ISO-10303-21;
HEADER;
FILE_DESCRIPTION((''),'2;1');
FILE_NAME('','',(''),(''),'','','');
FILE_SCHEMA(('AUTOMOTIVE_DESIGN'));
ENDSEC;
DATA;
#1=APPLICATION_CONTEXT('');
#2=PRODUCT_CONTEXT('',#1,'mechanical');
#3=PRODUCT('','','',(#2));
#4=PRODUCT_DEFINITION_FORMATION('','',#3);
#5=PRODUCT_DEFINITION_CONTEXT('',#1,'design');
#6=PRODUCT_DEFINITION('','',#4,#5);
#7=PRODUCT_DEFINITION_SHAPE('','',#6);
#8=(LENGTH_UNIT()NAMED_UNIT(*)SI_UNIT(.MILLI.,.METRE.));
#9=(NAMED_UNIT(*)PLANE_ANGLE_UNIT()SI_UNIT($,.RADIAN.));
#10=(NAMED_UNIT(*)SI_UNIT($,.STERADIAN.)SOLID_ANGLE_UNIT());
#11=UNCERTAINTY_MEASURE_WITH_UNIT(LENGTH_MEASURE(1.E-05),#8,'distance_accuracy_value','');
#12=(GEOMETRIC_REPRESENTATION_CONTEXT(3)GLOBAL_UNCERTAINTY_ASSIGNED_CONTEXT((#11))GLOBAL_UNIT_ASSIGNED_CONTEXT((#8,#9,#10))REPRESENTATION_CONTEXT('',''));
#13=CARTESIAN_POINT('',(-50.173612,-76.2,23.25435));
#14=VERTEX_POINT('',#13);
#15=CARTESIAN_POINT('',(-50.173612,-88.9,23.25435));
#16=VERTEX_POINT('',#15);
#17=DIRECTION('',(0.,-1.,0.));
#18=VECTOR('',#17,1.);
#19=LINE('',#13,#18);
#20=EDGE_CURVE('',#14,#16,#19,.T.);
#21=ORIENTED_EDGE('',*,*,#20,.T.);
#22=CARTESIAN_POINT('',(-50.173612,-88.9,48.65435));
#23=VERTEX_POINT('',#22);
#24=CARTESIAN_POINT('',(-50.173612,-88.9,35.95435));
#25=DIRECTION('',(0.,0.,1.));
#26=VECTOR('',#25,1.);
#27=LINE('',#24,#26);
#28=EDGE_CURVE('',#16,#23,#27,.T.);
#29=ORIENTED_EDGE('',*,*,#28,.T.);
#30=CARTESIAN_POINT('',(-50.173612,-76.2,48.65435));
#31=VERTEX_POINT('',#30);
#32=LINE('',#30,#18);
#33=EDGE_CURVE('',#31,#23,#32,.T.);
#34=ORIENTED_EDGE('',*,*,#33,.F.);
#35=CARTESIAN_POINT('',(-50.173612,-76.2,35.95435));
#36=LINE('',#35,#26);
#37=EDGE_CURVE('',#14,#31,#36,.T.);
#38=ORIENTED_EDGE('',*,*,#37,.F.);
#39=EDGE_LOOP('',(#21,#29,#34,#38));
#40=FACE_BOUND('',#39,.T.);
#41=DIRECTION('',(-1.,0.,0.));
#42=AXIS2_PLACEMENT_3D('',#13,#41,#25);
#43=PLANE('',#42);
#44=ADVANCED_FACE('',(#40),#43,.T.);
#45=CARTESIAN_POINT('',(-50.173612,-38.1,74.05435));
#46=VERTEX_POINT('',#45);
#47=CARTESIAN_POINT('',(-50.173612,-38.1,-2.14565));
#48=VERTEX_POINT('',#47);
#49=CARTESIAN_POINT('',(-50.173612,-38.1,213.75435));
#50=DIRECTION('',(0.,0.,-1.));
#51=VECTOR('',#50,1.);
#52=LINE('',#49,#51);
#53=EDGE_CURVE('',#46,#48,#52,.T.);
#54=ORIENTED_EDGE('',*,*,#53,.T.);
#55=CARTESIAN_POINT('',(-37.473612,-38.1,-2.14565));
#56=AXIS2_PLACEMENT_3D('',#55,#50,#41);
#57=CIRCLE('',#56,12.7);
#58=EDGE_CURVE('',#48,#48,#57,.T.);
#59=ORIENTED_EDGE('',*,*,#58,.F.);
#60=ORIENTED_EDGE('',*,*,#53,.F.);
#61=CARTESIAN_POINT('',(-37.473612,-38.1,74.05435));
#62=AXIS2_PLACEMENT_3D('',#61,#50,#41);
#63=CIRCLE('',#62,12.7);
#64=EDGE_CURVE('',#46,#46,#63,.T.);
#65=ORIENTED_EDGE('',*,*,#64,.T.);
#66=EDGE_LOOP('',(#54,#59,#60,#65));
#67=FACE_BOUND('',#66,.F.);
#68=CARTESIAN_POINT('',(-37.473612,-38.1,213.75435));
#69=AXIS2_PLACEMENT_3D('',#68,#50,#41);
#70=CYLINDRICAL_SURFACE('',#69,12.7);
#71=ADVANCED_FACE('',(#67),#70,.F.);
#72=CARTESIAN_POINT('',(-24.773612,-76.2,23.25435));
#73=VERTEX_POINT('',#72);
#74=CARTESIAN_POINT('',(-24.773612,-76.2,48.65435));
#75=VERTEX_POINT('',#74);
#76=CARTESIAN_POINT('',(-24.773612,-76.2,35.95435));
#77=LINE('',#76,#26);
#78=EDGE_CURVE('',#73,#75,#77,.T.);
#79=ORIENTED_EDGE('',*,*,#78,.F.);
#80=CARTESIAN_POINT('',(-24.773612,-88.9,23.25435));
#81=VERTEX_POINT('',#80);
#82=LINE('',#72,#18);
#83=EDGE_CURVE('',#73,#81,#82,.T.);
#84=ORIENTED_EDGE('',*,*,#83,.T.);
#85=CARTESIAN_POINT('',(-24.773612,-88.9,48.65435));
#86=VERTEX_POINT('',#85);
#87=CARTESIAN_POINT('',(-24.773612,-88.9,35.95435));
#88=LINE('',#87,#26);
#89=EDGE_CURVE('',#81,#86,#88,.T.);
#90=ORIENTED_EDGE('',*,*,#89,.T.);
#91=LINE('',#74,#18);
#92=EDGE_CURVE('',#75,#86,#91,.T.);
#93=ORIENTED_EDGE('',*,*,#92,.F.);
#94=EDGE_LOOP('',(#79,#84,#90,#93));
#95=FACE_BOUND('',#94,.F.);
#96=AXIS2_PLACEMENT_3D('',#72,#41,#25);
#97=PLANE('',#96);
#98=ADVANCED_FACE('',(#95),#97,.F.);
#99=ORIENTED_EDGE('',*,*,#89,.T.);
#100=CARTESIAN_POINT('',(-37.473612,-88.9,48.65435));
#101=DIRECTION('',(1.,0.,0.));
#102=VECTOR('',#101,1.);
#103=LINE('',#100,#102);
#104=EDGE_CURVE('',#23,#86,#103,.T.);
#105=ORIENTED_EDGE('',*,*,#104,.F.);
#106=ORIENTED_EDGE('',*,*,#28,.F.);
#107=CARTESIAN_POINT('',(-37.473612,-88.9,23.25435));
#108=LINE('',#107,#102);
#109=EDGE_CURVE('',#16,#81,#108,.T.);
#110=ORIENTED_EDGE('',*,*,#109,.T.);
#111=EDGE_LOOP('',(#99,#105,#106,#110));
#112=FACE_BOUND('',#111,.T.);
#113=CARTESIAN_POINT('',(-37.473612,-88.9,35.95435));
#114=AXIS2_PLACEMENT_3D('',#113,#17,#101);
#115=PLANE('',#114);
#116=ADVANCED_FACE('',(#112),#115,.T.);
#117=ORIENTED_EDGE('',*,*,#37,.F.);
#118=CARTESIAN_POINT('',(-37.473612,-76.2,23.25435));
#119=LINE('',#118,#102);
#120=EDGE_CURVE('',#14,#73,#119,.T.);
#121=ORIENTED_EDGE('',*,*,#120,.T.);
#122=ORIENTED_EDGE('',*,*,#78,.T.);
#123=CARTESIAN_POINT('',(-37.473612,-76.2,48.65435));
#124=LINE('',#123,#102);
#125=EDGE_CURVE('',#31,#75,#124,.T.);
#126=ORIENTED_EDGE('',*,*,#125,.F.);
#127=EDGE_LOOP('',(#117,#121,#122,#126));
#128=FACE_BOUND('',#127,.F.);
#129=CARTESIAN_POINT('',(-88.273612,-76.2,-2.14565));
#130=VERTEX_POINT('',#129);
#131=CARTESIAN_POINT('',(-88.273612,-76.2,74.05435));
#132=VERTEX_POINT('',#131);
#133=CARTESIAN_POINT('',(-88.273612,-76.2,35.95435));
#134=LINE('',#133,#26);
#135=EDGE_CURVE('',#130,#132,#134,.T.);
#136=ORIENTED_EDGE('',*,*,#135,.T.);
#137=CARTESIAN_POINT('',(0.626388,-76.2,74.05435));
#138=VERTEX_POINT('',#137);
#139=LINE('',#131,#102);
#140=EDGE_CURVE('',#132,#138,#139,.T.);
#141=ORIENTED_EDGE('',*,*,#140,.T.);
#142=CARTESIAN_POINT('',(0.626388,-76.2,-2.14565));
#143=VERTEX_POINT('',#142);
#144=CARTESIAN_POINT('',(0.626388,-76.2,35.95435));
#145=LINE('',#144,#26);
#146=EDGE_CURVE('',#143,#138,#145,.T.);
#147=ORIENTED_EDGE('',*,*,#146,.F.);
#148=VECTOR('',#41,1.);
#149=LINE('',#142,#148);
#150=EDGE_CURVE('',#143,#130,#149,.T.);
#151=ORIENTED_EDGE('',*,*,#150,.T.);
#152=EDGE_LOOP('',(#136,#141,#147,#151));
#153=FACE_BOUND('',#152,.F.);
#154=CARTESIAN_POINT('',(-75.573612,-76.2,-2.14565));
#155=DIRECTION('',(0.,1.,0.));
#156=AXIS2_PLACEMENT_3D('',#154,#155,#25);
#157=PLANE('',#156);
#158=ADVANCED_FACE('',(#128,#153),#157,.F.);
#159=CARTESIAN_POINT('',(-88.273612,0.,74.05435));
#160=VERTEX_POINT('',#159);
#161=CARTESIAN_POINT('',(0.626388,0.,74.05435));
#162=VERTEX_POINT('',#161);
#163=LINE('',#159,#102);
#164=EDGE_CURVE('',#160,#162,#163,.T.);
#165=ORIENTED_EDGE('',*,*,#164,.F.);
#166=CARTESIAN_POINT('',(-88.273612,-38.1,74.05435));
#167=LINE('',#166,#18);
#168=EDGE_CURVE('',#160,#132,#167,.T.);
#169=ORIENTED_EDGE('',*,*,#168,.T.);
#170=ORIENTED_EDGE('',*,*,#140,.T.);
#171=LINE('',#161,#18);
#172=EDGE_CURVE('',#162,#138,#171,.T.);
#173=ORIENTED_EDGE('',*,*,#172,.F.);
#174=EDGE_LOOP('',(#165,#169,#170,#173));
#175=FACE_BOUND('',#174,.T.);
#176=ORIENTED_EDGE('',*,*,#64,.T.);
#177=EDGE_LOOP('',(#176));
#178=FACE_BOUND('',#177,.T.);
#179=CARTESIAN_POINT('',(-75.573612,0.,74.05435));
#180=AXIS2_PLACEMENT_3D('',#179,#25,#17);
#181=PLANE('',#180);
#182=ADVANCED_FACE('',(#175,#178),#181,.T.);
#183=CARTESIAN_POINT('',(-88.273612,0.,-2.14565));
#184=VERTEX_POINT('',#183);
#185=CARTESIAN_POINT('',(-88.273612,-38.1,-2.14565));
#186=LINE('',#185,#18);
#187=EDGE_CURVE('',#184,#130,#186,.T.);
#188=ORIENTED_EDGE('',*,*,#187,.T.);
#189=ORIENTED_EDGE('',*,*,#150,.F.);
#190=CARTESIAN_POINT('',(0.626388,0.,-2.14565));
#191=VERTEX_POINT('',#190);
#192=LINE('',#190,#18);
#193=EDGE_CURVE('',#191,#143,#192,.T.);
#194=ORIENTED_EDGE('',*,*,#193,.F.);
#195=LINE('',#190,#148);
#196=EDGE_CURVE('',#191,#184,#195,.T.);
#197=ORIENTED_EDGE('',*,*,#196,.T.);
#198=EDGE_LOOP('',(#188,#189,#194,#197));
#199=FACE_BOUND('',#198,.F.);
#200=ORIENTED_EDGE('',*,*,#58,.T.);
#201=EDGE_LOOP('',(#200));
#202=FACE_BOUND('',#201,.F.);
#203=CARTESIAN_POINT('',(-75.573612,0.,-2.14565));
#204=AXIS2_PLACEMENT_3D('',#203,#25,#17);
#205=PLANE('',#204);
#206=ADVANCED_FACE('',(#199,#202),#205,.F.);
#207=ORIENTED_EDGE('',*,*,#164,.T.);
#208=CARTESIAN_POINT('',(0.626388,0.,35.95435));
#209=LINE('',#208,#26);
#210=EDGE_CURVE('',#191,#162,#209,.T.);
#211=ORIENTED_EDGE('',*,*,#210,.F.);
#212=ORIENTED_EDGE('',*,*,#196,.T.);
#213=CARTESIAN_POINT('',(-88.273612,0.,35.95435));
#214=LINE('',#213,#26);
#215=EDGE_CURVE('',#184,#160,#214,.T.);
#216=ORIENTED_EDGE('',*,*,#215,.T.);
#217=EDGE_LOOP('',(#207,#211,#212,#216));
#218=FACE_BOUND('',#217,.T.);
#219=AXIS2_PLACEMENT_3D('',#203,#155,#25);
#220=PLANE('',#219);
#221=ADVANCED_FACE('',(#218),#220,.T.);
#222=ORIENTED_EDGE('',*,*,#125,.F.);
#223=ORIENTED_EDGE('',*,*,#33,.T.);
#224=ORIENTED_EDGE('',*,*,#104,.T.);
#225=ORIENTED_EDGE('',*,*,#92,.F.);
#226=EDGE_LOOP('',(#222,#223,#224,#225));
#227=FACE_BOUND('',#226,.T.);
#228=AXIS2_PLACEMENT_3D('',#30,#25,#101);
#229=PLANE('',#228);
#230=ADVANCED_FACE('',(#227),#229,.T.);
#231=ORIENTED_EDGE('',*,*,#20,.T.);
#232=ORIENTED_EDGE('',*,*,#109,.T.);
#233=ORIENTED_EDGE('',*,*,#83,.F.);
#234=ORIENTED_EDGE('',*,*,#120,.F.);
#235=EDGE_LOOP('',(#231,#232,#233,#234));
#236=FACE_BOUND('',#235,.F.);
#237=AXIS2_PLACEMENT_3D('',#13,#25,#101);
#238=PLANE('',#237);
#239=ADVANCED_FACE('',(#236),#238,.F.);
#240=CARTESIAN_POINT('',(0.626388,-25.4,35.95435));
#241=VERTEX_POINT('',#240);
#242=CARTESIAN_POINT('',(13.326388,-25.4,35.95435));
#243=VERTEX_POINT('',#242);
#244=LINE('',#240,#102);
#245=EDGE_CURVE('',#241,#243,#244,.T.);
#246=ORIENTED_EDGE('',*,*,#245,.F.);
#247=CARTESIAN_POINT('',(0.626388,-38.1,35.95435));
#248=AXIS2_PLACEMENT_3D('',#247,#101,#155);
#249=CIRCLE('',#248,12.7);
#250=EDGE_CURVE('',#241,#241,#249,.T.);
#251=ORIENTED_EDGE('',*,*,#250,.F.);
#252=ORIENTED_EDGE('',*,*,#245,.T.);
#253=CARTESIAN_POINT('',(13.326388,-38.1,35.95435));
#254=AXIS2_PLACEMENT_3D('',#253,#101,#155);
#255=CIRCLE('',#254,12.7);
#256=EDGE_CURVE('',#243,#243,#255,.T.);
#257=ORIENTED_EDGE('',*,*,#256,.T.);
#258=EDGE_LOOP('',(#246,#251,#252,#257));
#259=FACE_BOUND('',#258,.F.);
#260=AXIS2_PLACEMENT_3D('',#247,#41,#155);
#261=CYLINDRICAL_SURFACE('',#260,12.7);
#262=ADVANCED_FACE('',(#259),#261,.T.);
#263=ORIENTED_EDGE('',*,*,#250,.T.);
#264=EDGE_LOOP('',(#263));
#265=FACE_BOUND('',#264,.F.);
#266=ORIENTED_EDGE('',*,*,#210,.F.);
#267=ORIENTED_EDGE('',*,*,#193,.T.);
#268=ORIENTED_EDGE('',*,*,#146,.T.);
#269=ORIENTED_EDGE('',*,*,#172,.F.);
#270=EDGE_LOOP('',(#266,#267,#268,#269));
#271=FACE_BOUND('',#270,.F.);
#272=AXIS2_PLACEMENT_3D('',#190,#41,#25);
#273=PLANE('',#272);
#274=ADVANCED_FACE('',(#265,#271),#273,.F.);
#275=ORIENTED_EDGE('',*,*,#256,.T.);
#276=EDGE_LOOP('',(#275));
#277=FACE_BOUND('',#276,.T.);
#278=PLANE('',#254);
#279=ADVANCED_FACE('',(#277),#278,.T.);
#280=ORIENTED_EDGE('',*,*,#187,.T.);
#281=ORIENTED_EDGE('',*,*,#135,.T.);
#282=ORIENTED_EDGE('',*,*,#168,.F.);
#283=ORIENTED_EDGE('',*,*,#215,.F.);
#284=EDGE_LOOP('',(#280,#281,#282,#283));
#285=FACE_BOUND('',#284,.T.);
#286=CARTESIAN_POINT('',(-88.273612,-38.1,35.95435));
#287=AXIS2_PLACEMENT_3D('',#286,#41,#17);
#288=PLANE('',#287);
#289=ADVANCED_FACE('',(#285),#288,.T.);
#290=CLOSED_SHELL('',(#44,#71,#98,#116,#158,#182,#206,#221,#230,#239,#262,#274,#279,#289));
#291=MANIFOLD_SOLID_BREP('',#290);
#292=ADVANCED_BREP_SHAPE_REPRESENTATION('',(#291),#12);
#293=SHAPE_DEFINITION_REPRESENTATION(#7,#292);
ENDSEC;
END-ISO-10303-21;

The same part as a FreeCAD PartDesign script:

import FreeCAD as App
import Part
import Sketcher

V = App.Vector
Q = App.Units.Quantity


def add_polygon(sketch, points):
    """Adds a closed chain of lines whose ends are joined by coincident constraints."""
    first, n = sketch.GeometryCount, len(points)
    for a, b in zip(points, points[1:] + points[:1]):
        sketch.addGeometry(Part.LineSegment(App.Vector(*a, 0), App.Vector(*b, 0)), False)
    for i in range(n):
        sketch.addConstraint(Sketcher.Constraint("Coincident", first + i, 2, first + (i + 1) % n, 1))

doc = App.newDocument("Part")
params = doc.addObject("Spreadsheet::Sheet", "Params")
for row, (alias, value) in enumerate([
    ("sketch1_width", "3 in"),
    ("pad1_length", "3 in"),
    ("sketch2_diameter", "1 in"),
    ("pad2_length", "0.5 in"),
    ("sketch3_diameter", "1 in"),
    ("hole_diameter", "1 in"),
    ("sketch4_width", "1 in"),
    ("pad3_length", "0.5 in"),
    ("sketch5_width", "3 in"),
    ("pad4_length", "0.5 in"),
], start=1):
    params.set(f"A{row}", alias)
    params.set(f"B{row}", "=" + value)
    params.setAlias(f"B{row}", alias)

body = doc.addObject("PartDesign::Body", "Body")

# Sketch on XZ plane
sketch1 = body.newObject("Sketcher::SketchObject", "Sketch")
sketch1.AttachmentSupport = (doc.getObject("XZ_Plane"), [""])
sketch1.MapMode = "FlatFace"
add_polygon(sketch1, [(-76, 74), (-76, -2), (1, -2), (1, 74)])  # lines 0-3
sketch1.addConstraint([
    Sketcher.Constraint("Vertical", 0),
    Sketcher.Constraint("Horizontal", 1),
    Sketcher.Constraint("Vertical", 2),
    Sketcher.Constraint("Horizontal", 3),
    Sketcher.Constraint("Equal", 3, 0),
    Sketcher.Constraint("DistanceX", 1, 1, 1, 2, Q("3 in")),
    Sketcher.Constraint("DistanceY", 0, 2, -1, 1, 2.14565),
    Sketcher.Constraint("DistanceX", 0, 2, -1, 1, 75.573612),
])
sketch1.setExpression("Constraints[9]", "Params.sketch1_width")
pad1 = body.newObject("PartDesign::Pad", "Pad")
pad1.Profile = sketch1
pad1.setExpression("Length", "Params.pad1_length")

# Sketch on YZ plane
sketch2 = body.newObject("Sketcher::SketchObject", "Sketch001")
sketch2.AttachmentSupport = (doc.getObject("YZ_Plane"), [""])
sketch2.MapMode = "FlatFace"
sketch2.AttachmentOffset = App.Placement(V(0, 0, 0.626388), App.Rotation())
sketch2.addGeometry(Part.Circle(V(-38, 36, 0), V(0, 0, 1), 13), False)
sketch2.addConstraint([
    Sketcher.Constraint("Diameter", 0, Q("1 in")),
    Sketcher.Constraint("DistanceX", 0, 3, -1, 1, Q("1.5 in")),
    Sketcher.Constraint("DistanceY", -1, 1, 0, 3, 35.95435),
])
sketch2.setExpression("Constraints[0]", "Params.sketch2_diameter")
pad2 = body.newObject("PartDesign::Pad", "Pad001")
pad2.Profile = sketch2
pad2.setExpression("Length", "Params.pad2_length")

# Sketch on XY plane
sketch3 = body.newObject("Sketcher::SketchObject", "Sketch002")
sketch3.AttachmentSupport = (doc.getObject("XY_Plane"), [""])
sketch3.MapMode = "FlatFace"
sketch3.AttachmentOffset = App.Placement(V(0, 0, 74.05435), App.Rotation())
sketch3.addGeometry(Part.Circle(V(-37, -38, 0), V(0, 0, 1), 13), False)
sketch3.addConstraint([
    Sketcher.Constraint("Diameter", 0, Q("1 in")),
    Sketcher.Constraint("DistanceY", 0, 3, -1, 1, Q("1.5 in")),
    Sketcher.Constraint("DistanceX", 0, 3, -1, 1, 37.473612),
])
sketch3.setExpression("Constraints[0]", "Params.sketch3_diameter")
doc.recompute()
hole = body.newObject("PartDesign::Hole", "Hole")
hole.Profile = sketch3
hole.ThreadType = "None"
hole.setExpression("Diameter", "Params.hole_diameter")
hole.DepthType = "ThroughAll"

# Sketch on XZ plane
sketch4 = body.newObject("Sketcher::SketchObject", "Sketch003")
sketch4.AttachmentSupport = (doc.getObject("XZ_Plane"), [""])
sketch4.MapMode = "FlatFace"
sketch4.AttachmentOffset = App.Placement(V(0, 0, 3 * 25.4), App.Rotation())
add_polygon(sketch4, [(-50, 49), (-50, 23), (-25, 23), (-25, 49)])  # lines 0-3
sketch4.addConstraint([
    Sketcher.Constraint("Vertical", 0),
    Sketcher.Constraint("Horizontal", 1),
    Sketcher.Constraint("Vertical", 2),
    Sketcher.Constraint("Horizontal", 3),
    Sketcher.Constraint("Equal", 3, 0),
    Sketcher.Constraint("DistanceX", 1, 1, 1, 2, Q("1 in")),
    Sketcher.Constraint("DistanceY", -1, 1, 0, 2, 23.25435),
    Sketcher.Constraint("DistanceX", 0, 2, -1, 1, 50.173612),
])
sketch4.setExpression("Constraints[9]", "Params.sketch4_width")
pad3 = body.newObject("PartDesign::Pad", "Pad002")
pad3.Profile = sketch4
pad3.setExpression("Length", "Params.pad3_length")

# Sketch on YZ plane
sketch5 = body.newObject("Sketcher::SketchObject", "Sketch004")
sketch5.AttachmentSupport = (doc.getObject("YZ_Plane"), [""])
sketch5.MapMode = "FlatFace"
sketch5.AttachmentOffset = App.Placement(V(0, 0, -75.573612), App.Rotation())
add_polygon(sketch5, [(0, 74), (0, -2), (-76, -2), (-76, 74)])  # lines 0-3
sketch5.addConstraint([
    Sketcher.Constraint("Vertical", 0),
    Sketcher.Constraint("Horizontal", 1),
    Sketcher.Constraint("Vertical", 2),
    Sketcher.Constraint("Horizontal", 3),
    Sketcher.Constraint("PointOnObject", 0, 2, -2),
    Sketcher.Constraint("Equal", 3, 0),
    Sketcher.Constraint("DistanceX", 1, 2, 1, 1, Q("3 in")),
    Sketcher.Constraint("DistanceY", 0, 2, -1, 1, 2.14565),
])
sketch5.setExpression("Constraints[10]", "Params.sketch5_width")
pad4 = body.newObject("PartDesign::Pad", "Pad003")
pad4.Profile = sketch5
pad4.setExpression("Length", "Params.pad4_length")
pad4.Reversed = True

doc.recompute()
